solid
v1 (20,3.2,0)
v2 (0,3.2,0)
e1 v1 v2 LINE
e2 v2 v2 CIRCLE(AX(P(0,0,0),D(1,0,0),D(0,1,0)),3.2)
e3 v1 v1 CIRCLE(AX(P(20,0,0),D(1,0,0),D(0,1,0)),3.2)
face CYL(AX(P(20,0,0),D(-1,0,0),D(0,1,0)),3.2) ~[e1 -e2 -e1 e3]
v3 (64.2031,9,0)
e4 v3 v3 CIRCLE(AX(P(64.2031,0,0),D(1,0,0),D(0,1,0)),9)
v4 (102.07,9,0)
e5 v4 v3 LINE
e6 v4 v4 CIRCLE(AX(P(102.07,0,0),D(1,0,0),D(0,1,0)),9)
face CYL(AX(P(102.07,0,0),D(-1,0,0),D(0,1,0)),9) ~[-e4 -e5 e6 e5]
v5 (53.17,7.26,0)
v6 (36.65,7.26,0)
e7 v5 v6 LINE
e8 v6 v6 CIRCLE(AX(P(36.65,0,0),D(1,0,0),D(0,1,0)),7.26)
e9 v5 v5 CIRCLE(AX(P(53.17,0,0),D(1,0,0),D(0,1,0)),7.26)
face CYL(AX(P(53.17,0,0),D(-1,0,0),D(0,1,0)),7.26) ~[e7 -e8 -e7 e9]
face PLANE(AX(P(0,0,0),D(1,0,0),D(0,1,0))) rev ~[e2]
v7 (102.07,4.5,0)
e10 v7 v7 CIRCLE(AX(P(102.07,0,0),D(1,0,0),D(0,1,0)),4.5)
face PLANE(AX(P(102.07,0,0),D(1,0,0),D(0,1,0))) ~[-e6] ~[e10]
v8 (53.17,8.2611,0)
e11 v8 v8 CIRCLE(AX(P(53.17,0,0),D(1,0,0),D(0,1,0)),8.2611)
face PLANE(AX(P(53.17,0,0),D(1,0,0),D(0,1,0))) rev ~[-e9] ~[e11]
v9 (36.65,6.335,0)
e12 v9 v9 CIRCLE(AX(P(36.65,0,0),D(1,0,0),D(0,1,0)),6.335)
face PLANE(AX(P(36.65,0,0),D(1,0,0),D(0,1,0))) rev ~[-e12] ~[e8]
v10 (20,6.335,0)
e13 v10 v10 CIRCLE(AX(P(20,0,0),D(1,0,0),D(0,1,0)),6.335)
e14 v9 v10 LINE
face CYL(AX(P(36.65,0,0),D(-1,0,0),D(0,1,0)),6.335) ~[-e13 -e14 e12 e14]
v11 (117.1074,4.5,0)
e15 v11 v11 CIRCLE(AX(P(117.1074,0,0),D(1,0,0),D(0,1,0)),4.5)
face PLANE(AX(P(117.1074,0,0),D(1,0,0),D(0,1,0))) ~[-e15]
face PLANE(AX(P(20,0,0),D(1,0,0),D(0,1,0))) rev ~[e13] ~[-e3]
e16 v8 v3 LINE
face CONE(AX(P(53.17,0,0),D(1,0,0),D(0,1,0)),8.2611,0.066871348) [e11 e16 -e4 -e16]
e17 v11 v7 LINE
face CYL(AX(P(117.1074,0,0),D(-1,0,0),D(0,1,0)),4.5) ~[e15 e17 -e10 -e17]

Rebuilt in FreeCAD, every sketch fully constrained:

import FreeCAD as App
import Part
import Sketcher

V = App.Vector
Q = App.Units.Quantity

doc = App.newDocument("Part")
body = doc.addObject("PartDesign::Body", "Body")

# Sketch on XY plane
sketch1 = doc.addObject("Sketcher::SketchObject", "Sketch")
body.addObject(sketch1)
sketch1.AttachmentSupport = (doc.XY_Plane, [""])
sketch1.MapMode = "FlatFace"
sketch1.addGeometry(Part.LineSegment(V(0, 3.2, 0), V(0, 0, 0)), False)
sketch1.addGeometry(Part.LineSegment(V(0, 0, 0), V(117.1, 0, 0)), False)
sketch1.addGeometry(Part.LineSegment(V(117.1, 0, 0), V(117.1, 4.5, 0)), False)
sketch1.addGeometry(Part.LineSegment(V(117.1, 4.5, 0), V(102.1, 4.5, 0)), False)
sketch1.addGeometry(Part.LineSegment(V(102.1, 4.5, 0), V(102.1, 9, 0)), False)
sketch1.addGeometry(Part.LineSegment(V(102.1, 9, 0), V(64.2, 9, 0)), False)
sketch1.addGeometry(Part.LineSegment(V(64.2, 9, 0), V(53.2, 8.3, 0)), False)
sketch1.addGeometry(Part.LineSegment(V(53.2, 8.3, 0), V(53.2, 7.3, 0)), False)
sketch1.addGeometry(Part.LineSegment(V(53.2, 7.3, 0), V(36.6, 7.3, 0)), False)
sketch1.addGeometry(Part.LineSegment(V(36.6, 7.3, 0), V(36.6, 6.3, 0)), False)
sketch1.addGeometry(Part.LineSegment(V(36.6, 6.3, 0), V(20, 6.3, 0)), False)
sketch1.addGeometry(Part.LineSegment(V(20, 6.3, 0), V(20, 3.2, 0)), False)
sketch1.addGeometry(Part.LineSegment(V(20, 3.2, 0), V(0, 3.2, 0)), False)
sketch1.addConstraint(Sketcher.Constraint("Coincident", 0, 2, 1, 1))
sketch1.addConstraint(Sketcher.Constraint("Coincident", 1, 2, 2, 1))
sketch1.addConstraint(Sketcher.Constraint("Coincident", 2, 2, 3, 1))
sketch1.addConstraint(Sketcher.Constraint("Coincident", 3, 2, 4, 1))
sketch1.addConstraint(Sketcher.Constraint("Coincident", 4, 2, 5, 1))
sketch1.addConstraint(Sketcher.Constraint("Coincident", 5, 2, 6, 1))
sketch1.addConstraint(Sketcher.Constraint("Coincident", 6, 2, 7, 1))
sketch1.addConstraint(Sketcher.Constraint("Coincident", 7, 2, 8, 1))
sketch1.addConstraint(Sketcher.Constraint("Coincident", 8, 2, 9, 1))
sketch1.addConstraint(Sketcher.Constraint("Coincident", 9, 2, 10, 1))
sketch1.addConstraint(Sketcher.Constraint("Coincident", 10, 2, 11, 1))
sketch1.addConstraint(Sketcher.Constraint("Coincident", 11, 2, 12, 1))
sketch1.addConstraint(Sketcher.Constraint("Coincident", 12, 2, 0, 1))
sketch1.addConstraint(Sketcher.Constraint("Vertical", 0))
sketch1.addConstraint(Sketcher.Constraint("Horizontal", 1))
sketch1.addConstraint(Sketcher.Constraint("Vertical", 2))
sketch1.addConstraint(Sketcher.Constraint("Horizontal", 3))
sketch1.addConstraint(Sketcher.Constraint("Vertical", 4))
sketch1.addConstraint(Sketcher.Constraint("Horizontal", 5))
sketch1.addConstraint(Sketcher.Constraint("Vertical", 7))
sketch1.addConstraint(Sketcher.Constraint("Horizontal", 8))
sketch1.addConstraint(Sketcher.Constraint("Vertical", 9))
sketch1.addConstraint(Sketcher.Constraint("Horizontal", 10))
sketch1.addConstraint(Sketcher.Constraint("Vertical", 11))
sketch1.addConstraint(Sketcher.Constraint("Horizontal", 12))
sketch1.addConstraint(Sketcher.Constraint("Coincident", 0, 2, -1, 1))
sketch1.addConstraint(Sketcher.Constraint("Equal", 2, 4))
sketch1.addConstraint(Sketcher.Constraint("DistanceX", 12, 2, 12, 1, Q("20 mm")))
sketch1.addConstraint(Sketcher.Constraint("DistanceY", 0, 2, 0, 1, Q("3.2 mm")))
sketch1.addConstraint(Sketcher.Constraint("DistanceY", -1, 1, 4, 2, Q("9 mm")))
sketch1.addConstraint(Sketcher.Constraint("DistanceX", 8, 2, 8, 1, Q("16.52 mm")))
sketch1.addConstraint(Sketcher.Constraint("DistanceX", 10, 2, 10, 1, Q("16.65 mm")))
sketch1.addConstraint(Sketcher.Constraint("DistanceX", 6, 2, 4, 2, Q("48.9 mm")))
sketch1.addConstraint(Sketcher.Constraint("DistanceY", -1, 1, 7, 2, Q("7.26 mm")))
sketch1.addConstraint(Sketcher.Constraint("DistanceY", -1, 1, 9, 2, Q("6.335 mm")))
sketch1.addConstraint(Sketcher.Constraint("DistanceX", 5, 2, 5, 1, Q("37.867 mm")))
sketch1.addConstraint(Sketcher.Constraint("DistanceY", 7, 2, 7, 1, Q("1.001 mm")))
sketch1.addConstraint(Sketcher.Constraint("DistanceX", 1, 1, 1, 2, Q("117.1074 mm")))
revolution = doc.addObject("PartDesign::Revolution", "Revolution")
body.addObject(revolution)
revolution.Profile = sketch1
revolution.ReferenceAxis = (sketch1, ["H_Axis"])
revolution.Angle = 360

doc.recompute()
